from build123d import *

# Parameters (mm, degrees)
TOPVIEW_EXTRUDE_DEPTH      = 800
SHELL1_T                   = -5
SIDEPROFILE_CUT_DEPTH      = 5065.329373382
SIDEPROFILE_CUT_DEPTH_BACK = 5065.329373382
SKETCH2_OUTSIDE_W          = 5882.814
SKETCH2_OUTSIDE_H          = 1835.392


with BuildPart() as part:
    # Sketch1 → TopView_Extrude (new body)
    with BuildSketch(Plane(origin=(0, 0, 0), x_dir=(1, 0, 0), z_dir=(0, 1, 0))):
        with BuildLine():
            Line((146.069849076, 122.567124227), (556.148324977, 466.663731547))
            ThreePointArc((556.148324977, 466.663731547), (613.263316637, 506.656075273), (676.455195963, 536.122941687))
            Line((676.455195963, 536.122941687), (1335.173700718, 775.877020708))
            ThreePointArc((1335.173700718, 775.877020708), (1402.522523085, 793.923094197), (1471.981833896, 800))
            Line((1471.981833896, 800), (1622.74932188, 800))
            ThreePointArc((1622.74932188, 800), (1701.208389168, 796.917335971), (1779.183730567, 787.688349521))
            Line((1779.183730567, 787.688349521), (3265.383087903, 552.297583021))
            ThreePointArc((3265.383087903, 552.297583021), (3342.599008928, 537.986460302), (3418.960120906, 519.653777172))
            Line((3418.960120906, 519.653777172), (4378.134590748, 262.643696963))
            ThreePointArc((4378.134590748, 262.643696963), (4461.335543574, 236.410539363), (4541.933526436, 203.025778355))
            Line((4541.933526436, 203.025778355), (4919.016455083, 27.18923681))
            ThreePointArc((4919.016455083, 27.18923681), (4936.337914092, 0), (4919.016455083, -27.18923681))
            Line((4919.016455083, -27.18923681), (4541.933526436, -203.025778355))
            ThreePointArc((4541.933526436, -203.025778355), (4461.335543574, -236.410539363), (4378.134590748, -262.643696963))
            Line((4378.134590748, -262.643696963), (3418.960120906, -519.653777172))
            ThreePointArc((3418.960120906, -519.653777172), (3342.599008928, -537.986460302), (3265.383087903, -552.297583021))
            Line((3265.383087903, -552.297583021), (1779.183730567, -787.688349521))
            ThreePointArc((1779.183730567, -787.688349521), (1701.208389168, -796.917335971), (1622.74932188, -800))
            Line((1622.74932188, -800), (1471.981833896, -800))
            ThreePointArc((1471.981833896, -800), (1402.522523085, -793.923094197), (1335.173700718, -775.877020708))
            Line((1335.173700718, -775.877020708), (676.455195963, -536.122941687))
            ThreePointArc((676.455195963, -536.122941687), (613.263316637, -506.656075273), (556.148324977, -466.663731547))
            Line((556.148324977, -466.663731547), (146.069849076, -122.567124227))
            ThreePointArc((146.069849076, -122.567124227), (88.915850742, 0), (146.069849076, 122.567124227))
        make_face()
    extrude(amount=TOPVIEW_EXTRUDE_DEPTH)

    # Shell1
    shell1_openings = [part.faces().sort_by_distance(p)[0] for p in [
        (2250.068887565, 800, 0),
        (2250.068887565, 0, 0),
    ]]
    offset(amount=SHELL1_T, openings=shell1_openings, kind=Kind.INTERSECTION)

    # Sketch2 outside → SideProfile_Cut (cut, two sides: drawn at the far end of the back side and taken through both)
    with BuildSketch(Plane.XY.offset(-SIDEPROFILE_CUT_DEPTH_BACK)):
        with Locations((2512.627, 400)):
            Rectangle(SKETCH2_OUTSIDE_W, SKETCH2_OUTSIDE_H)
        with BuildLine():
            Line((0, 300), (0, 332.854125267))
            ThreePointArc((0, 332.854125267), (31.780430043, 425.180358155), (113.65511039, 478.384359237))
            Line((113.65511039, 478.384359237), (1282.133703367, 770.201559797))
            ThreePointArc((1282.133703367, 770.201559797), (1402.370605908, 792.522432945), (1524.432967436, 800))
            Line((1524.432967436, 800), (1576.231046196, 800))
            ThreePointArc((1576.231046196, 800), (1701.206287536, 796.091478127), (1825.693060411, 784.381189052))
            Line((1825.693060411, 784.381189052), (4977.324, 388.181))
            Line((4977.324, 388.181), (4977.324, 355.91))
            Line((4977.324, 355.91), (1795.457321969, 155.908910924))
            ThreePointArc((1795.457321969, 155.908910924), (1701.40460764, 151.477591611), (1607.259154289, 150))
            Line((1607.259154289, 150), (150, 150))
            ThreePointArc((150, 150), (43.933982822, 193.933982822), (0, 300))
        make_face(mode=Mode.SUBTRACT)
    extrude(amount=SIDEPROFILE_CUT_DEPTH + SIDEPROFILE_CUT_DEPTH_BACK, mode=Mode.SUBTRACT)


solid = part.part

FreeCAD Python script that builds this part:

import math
import FreeCAD as App
import Part
import Sketcher
Q = App.Units.Quantity


def faces_at(feature, points):
    """Names of the faces that lie closest to the given points."""
    faces = feature.Shape.Faces
    near = lambda p: min(range(len(faces)), key=lambda i: faces[i].distToShape(Part.Vertex(*p))[0])
    return sorted({f"Face{near(p) + 1}" for p in points})

doc = App.newDocument("Part")
body = doc.addObject("PartDesign::Body", "Body")

# Sketch on XZ plane
sketch1 = body.newObject("Sketcher::SketchObject", "Sketch")
sketch1.AttachmentSupport = (doc.getObject("XZ_Plane"), [""])
sketch1.MapMode = "FlatFace"
sketch1.addGeometry([
    Part.LineSegment(App.Vector(556.148325, -466.663732, 0), App.Vector(146.069849, -122.567124, 0)),  # 0
    Part.ArcOfCircle(Part.Circle(App.Vector(248.915851, 0, 0), App.Vector(0, 0, 1), 160), math.radians(129.999993), math.radians(230.000007)),  # 1
    Part.LineSegment(App.Vector(146.069849, 122.567124, 0), App.Vector(556.148325, 466.663732, 0)),  # 2
    Part.ArcOfCircle(Part.Circle(App.Vector(813.263329, 160.245921, 0), App.Vector(0, 0, 1), 400), math.radians(110.000012), math.radians(129.999993)),  # 3
    Part.LineSegment(App.Vector(676.455196, 536.122942, 0), App.Vector(1335.173701, 775.877021, 0)),  # 4
    Part.ArcOfCircle(Part.Circle(App.Vector(1471.981834, 400, 0), App.Vector(0, 0, 1), 400), math.radians(90), math.radians(110.000012)),  # 5
    Part.LineSegment(App.Vector(1471.981834, 800, 0), App.Vector(1622.749322, 800, 0)),  # 6
    Part.ArcOfCircle(Part.Circle(App.Vector(1622.749322, -200, 0), App.Vector(0, 0, 1), 1000), math.radians(81.000003), math.radians(90)),  # 7
    Part.LineSegment(App.Vector(1779.183731, 787.68835, 0), App.Vector(3265.383088, 552.297583, 0)),  # 8
    Part.ArcOfCircle(Part.Circle(App.Vector(3030.731475, -929.234941, 0), App.Vector(0, 0, 1), 1500), math.radians(74.999997), math.radians(81.000003)),  # 9
    Part.LineSegment(App.Vector(3418.960121, 519.653777, 0), App.Vector(4378.134591, 262.643697, 0)),  # 10
    Part.ArcOfCircle(Part.Circle(App.Vector(4119.315493, -703.282115, 0), App.Vector(0, 0, 1), 1000), math.radians(65.000014), math.radians(74.999997)),  # 11
    Part.LineSegment(App.Vector(4541.933526, 203.025778, 0), App.Vector(4919.016455, 27.189237, 0)),  # 12
    Part.ArcOfCircle(Part.Circle(App.Vector(4906.337914, 0, 0), App.Vector(0, 0, 1), 30), math.radians(-65.000014), math.radians(65.000014)),  # 13
    Part.LineSegment(App.Vector(4919.016455, -27.189237, 0), App.Vector(4541.933526, -203.025778, 0)),  # 14
    Part.ArcOfCircle(Part.Circle(App.Vector(4119.315493, 703.282115, 0), App.Vector(0, 0, 1), 1000), math.radians(-74.999997), math.radians(-65.000014)),  # 15
    Part.LineSegment(App.Vector(4378.134591, -262.643697, 0), App.Vector(3418.960121, -519.653777, 0)),  # 16
    Part.ArcOfCircle(Part.Circle(App.Vector(3030.731475, 929.234941, 0), App.Vector(0, 0, 1), 1500), math.radians(-81.000003), math.radians(-74.999997)),  # 17
    Part.LineSegment(App.Vector(3265.383088, -552.297583, 0), App.Vector(1779.183731, -787.68835, 0)),  # 18
    Part.ArcOfCircle(Part.Circle(App.Vector(1622.749322, 200, 0), App.Vector(0, 0, 1), 1000), math.radians(-90), math.radians(-81.000003)),  # 19
    Part.LineSegment(App.Vector(1622.749322, -800, 0), App.Vector(1471.981834, -800, 0)),  # 20
    Part.ArcOfCircle(Part.Circle(App.Vector(1471.981834, -400, 0), App.Vector(0, 0, 1), 400), math.radians(-110.000012), math.radians(-90)),  # 21
    Part.LineSegment(App.Vector(1335.173701, -775.877021, 0), App.Vector(676.455196, -536.122942, 0)),  # 22
    Part.ArcOfCircle(Part.Circle(App.Vector(813.263329, -160.245921, 0), App.Vector(0, 0, 1), 400), math.radians(-129.999993), math.radians(-110.000012)),  # 23
], False)
sketch1.addConstraint([
    Sketcher.Constraint("Coincident", 0, 2, 1, 2),
    Sketcher.Constraint("Coincident", 1, 1, 2, 1),
    Sketcher.Constraint("Coincident", 2, 2, 3, 2),
    Sketcher.Constraint("Coincident", 3, 1, 4, 1),
    Sketcher.Constraint("Coincident", 4, 2, 5, 2),
    Sketcher.Constraint("Coincident", 5, 1, 6, 1),
    Sketcher.Constraint("Coincident", 6, 2, 7, 2),
    Sketcher.Constraint("Coincident", 7, 1, 8, 1),
    Sketcher.Constraint("Coincident", 8, 2, 9, 2),
    Sketcher.Constraint("Coincident", 9, 1, 10, 1),
    Sketcher.Constraint("Coincident", 10, 2, 11, 2),
    Sketcher.Constraint("Coincident", 11, 1, 12, 1),
    Sketcher.Constraint("Coincident", 12, 2, 13, 2),
    Sketcher.Constraint("Coincident", 13, 1, 14, 1),
    Sketcher.Constraint("Coincident", 14, 2, 15, 2),
    Sketcher.Constraint("Coincident", 15, 1, 16, 1),
    Sketcher.Constraint("Coincident", 16, 2, 17, 2),
    Sketcher.Constraint("Coincident", 17, 1, 18, 1),
    Sketcher.Constraint("Coincident", 18, 2, 19, 2),
    Sketcher.Constraint("Coincident", 19, 1, 20, 1),
    Sketcher.Constraint("Coincident", 20, 2, 21, 2),
    Sketcher.Constraint("Coincident", 21, 1, 22, 1),
    Sketcher.Constraint("Coincident", 22, 2, 23, 2),
    Sketcher.Constraint("Coincident", 23, 1, 0, 1),
    Sketcher.Constraint("Horizontal", 6),
    Sketcher.Constraint("Horizontal", 20),
    Sketcher.Constraint("PointOnObject", 1, 3, -1),
    Sketcher.Constraint("PointOnObject", 13, 3, -1),
    Sketcher.Constraint("Radius", 1, Q("160 mm")),
    Sketcher.Constraint("Radius", 3, Q("400 mm")),
    Sketcher.Constraint("Radius", 5, Q("400 mm")),
    Sketcher.Constraint("Radius", 7, Q("1000 mm")),
    Sketcher.Constraint("Radius", 9, Q("1500 mm")),
    Sketcher.Constraint("Radius", 11, Q("1000 mm")),
    Sketcher.Constraint("Radius", 13, Q("30 mm")),
    Sketcher.Constraint("Radius", 15, Q("1000 mm")),
    Sketcher.Constraint("Radius", 17, Q("1500 mm")),
    Sketcher.Constraint("Radius", 19, Q("1000 mm")),
    Sketcher.Constraint("Radius", 21, Q("400 mm")),
    Sketcher.Constraint("Radius", 23, Q("400 mm")),
    Sketcher.Constraint("DistanceY", -1, 1, 5, 3, Q("400 mm")),
    Sketcher.Constraint("DistanceY", -1, 1, 19, 3, Q("200 mm")),
    Sketcher.Constraint("DistanceX", 0, 2, 1, 3, Q("102.846002 mm")),
    Sketcher.Constraint("DistanceX", 1, 1, 1, 3, Q("102.846002 mm")),
    Sketcher.Constraint("DistanceX", -1, 1, 4, 2, Q("1335.173701 mm")),
    Sketcher.Constraint("DistanceX", -1, 1, 21, 1, Q("1335.173701 mm")),
    Sketcher.Constraint("DistanceY", 3, 3, 4, 2, Q("615.6311 mm")),
    Sketcher.Constraint("DistanceY", 11, 3, 8, 2, Q("1255.579698 mm")),
    Sketcher.Constraint("DistanceX", 23, 3, 18, 2, Q("965.920401 mm")),
    Sketcher.Constraint("Distance", 12, Q("416.064928 mm")),
    Sketcher.Constraint("Distance", 14, Q("416.064928 mm")),
    Sketcher.Constraint("DistanceX", 6, 1, 6, 2, Q("150.767488 mm")),
    Sketcher.Constraint("DistanceX", 20, 2, 20, 1, Q("150.767488 mm")),
    Sketcher.Constraint("DistanceX", -1, 1, 1, 3, Q("248.915851 mm")),
    Sketcher.Constraint("DistanceX", -1, 1, 3, 3, Q("813.263329 mm")),
    Sketcher.Constraint("DistanceY", -1, 1, 3, 3, Q("160.245921 mm")),
    Sketcher.Constraint("DistanceX", -1, 1, 7, 3, Q("1622.749322 mm")),
    Sketcher.Constraint("DistanceY", 9, 3, -1, 1, Q("929.234941 mm")),
    Sketcher.Constraint("DistanceY", -1, 1, 17, 3, Q("929.234941 mm")),
    Sketcher.Constraint("DistanceX", -1, 1, 19, 3, Q("1622.749322 mm")),
    Sketcher.Constraint("DistanceX", -1, 1, 23, 3, Q("813.263329 mm")),
    Sketcher.Constraint("DistanceY", 23, 3, -1, 1, Q("160.245921 mm")),
    Sketcher.Constraint("DistanceY", -1, 1, 2, 2, Q("466.663732 mm")),
    Sketcher.Constraint("DistanceY", -1, 1, 3, 1, Q("536.122942 mm")),
    Sketcher.Constraint("DistanceX", -1, 1, 6, 2, Q("1622.749322 mm")),
    Sketcher.Constraint("DistanceX", -1, 1, 10, 2, Q("4378.134591 mm")),
    Sketcher.Constraint("DistanceY", 14, 2, -1, 1, Q("203.025778 mm")),
    Sketcher.Constraint("DistanceX", -1, 1, 16, 2, Q("3418.960121 mm")),
    Sketcher.Constraint("DistanceY", 21, 1, -1, 1, Q("775.877021 mm")),
    Sketcher.Constraint("DistanceY", 22, 2, -1, 1, Q("536.122942 mm")),
    Sketcher.Constraint("DistanceY", 23, 1, -1, 1, Q("466.663732 mm")),
    Sketcher.Constraint("DistanceX", 5, 3, 9, 3, Q("1558.749641 mm")),
    Sketcher.Constraint("DistanceX", 9, 3, 11, 3, Q("1088.584019 mm")),
    Sketcher.Constraint("DistanceX", 11, 3, 13, 3, Q("787.022421 mm")),
    Sketcher.Constraint("DistanceX", 15, 3, 13, 3, Q("787.022421 mm")),
    Sketcher.Constraint("DistanceY", 11, 3, 15, 3, Q("1406.564231 mm")),
    Sketcher.Constraint("DistanceX", 17, 3, 15, 3, Q("1088.584019 mm")),
    Sketcher.Constraint("DistanceY", 8, 2, 17, 3, Q("376.937358 mm")),
    Sketcher.Constraint("DistanceX", 13, 3, 12, 2, Q("12.678541 mm")),
    Sketcher.Constraint("Distance", 8, Q("1504.725006 mm")),
    Sketcher.Constraint("Distance", 10, Q("993.010496 mm")),
    Sketcher.Constraint("Distance", 16, Q("993.010496 mm")),
    Sketcher.Constraint("Distance", 18, Q("1504.725006 mm")),
    Sketcher.Constraint("DistanceX", -1, 1, 20, 2, Q("1471.981834 mm")),
])
pad1 = body.newObject("PartDesign::Pad", "Pad")
pad1.Profile = sketch1
pad1.Length = 800
pad1.Reversed = True
doc.recompute()

thickness = body.newObject("PartDesign::Thickness", "Thickness")
thickness.Base = (pad1, faces_at(pad1, [(2512.627, 800, 0), (2512.627, 0, 0)]))
thickness.Value = 5
thickness.Reversed = True
thickness.Join = "Intersection"

# Sketch on XY plane
sketch2 = body.newObject("Sketcher::SketchObject", "Sketch001")
sketch2.AttachmentSupport = (doc.getObject("XY_Plane"), [""])
sketch2.MapMode = "FlatFace"
sketch2.addGeometry([
    Part.LineSegment(App.Vector(-428.78, 1317.696, 0), App.Vector(-428.78, -517.696, 0)),  # 0
    Part.LineSegment(App.Vector(-428.78, -517.696, 0), App.Vector(5454.034, -517.696, 0)),  # 1
    Part.LineSegment(App.Vector(5454.034, -517.696, 0), App.Vector(5454.034, 1317.696, 0)),  # 2
    Part.LineSegment(App.Vector(5454.034, 1317.696, 0), App.Vector(-428.78, 1317.696, 0)),  # 3
    Part.ArcOfCircle(Part.Circle(App.Vector(150, 300, 0), App.Vector(0, 0, 1), 150), math.radians(180), math.radians(270)),  # 4
    Part.LineSegment(App.Vector(0, 300, 0), App.Vector(0, 332.854125, 0)),  # 5
    Part.ArcOfCircle(Part.Circle(App.Vector(150, 332.854125, 0), App.Vector(0, 0, 1), 150), math.radians(104.022285), math.radians(180)),  # 6
    Part.LineSegment(App.Vector(113.65511, 478.384359, 0), App.Vector(1282.133703, 770.20156, 0)),  # 7
    Part.ArcOfCircle(Part.Circle(App.Vector(1524.432967, -200, 0), App.Vector(0, 0, 1), 1000), math.radians(90), math.radians(104.022285)),  # 8
    Part.LineSegment(App.Vector(1524.432967, 800, 0), App.Vector(1576.231046, 800, 0)),  # 9
    Part.ArcOfCircle(Part.Circle(App.Vector(1576.231046, -1200, 0), App.Vector(0, 0, 1), 2000), math.radians(82.834778), math.radians(90)),  # 10
    Part.LineSegment(App.Vector(1825.69306, 784.381189, 0), App.Vector(4977.324, 388.181, 0)),  # 11
    Part.LineSegment(App.Vector(4977.324, 388.181, 0), App.Vector(4977.324, 355.91, 0)),  # 12
    Part.LineSegment(App.Vector(4977.324, 355.91, 0), App.Vector(1795.457322, 155.908911, 0)),  # 13
    Part.ArcOfCircle(Part.Circle(App.Vector(1607.259154, 3150.000001, 0), App.Vector(0, 0, 1), 3000.000001), math.radians(-90), math.radians(-86.403318)),  # 14
    Part.LineSegment(App.Vector(1607.259154, 150, 0), App.Vector(150, 150, 0)),  # 15
], False)
sketch2.addConstraint([
    Sketcher.Constraint("Coincident", 0, 2, 1, 1),
    Sketcher.Constraint("Coincident", 1, 2, 2, 1),
    Sketcher.Constraint("Coincident", 2, 2, 3, 1),
    Sketcher.Constraint("Coincident", 3, 2, 0, 1),
    Sketcher.Constraint("Tangent", 4, 1, 5, 1),
    Sketcher.Constraint("Tangent", 5, 2, 6, 2),
    Sketcher.Constraint("Tangent", 6, 1, 7, 1),
    Sketcher.Constraint("Coincident", 7, 2, 8, 2),
    Sketcher.Constraint("Tangent", 8, 1, 9, 1),
    Sketcher.Constraint("Coincident", 9, 2, 10, 2),
    Sketcher.Constraint("Coincident", 10, 1, 11, 1),
    Sketcher.Constraint("Coincident", 11, 2, 12, 1),
    Sketcher.Constraint("Coincident", 12, 2, 13, 1),
    Sketcher.Constraint("Coincident", 13, 2, 14, 2),
    Sketcher.Constraint("Coincident", 14, 1, 15, 1),
    Sketcher.Constraint("Tangent", 15, 2, 4, 2),
    Sketcher.Constraint("Vertical", 0),
    Sketcher.Constraint("Horizontal", 1),
    Sketcher.Constraint("Vertical", 2),
    Sketcher.Constraint("Horizontal", 3),
    Sketcher.Constraint("Vertical", 5),
    Sketcher.Constraint("Horizontal", 9),
    Sketcher.Constraint("Vertical", 12),
    Sketcher.Constraint("Horizontal", 15),
    Sketcher.Constraint("Equal", 4, 6),
    Sketcher.Constraint("PointOnObject", 4, 1, -2),
    Sketcher.Constraint("Vertical", 10, 3, 9, 2),
    Sketcher.Constraint("Radius", 4, Q("150 mm")),
    Sketcher.Constraint("Radius", 8, Q("1000 mm")),
    Sketcher.Constraint("Radius", 10, Q("2000 mm")),
    Sketcher.Constraint("Radius", 14, Q("3000.000001 mm")),
    Sketcher.Constraint("DistanceY", -1, 1, 4, 3, Q("300 mm")),
    Sketcher.Constraint("DistanceY", 8, 3, -1, 1, Q("200 mm")),
    Sketcher.Constraint("DistanceX", 1, 1, 1, 2, Q("5882.814 mm")),
    Sketcher.Constraint("DistanceY", 0, 2, 0, 1, Q("1835.392 mm")),
    Sketcher.Constraint("DistanceY", 12, 2, 12, 1, Q("32.271 mm")),
    Sketcher.Constraint("DistanceX", 0, 2, -1, 1, Q("428.78 mm")),
    Sketcher.Constraint("DistanceY", -1, 1, 12, 2, Q("355.91 mm")),
    Sketcher.Constraint("DistanceX", 11, 2, 1, 2, Q("476.71 mm")),
    Sketcher.Constraint("DistanceY", 0, 2, -1, 1, Q("517.696 mm")),
    Sketcher.Constraint("DistanceX", 9, 1, 9, 2, Q("51.798079 mm")),
    Sketcher.Constraint("DistanceY", 6, 1, 7, 2, Q("291.817201 mm")),
    Sketcher.Constraint("Distance", 13, Q("3188.146169 mm")),
    Sketcher.Constraint("DistanceX", 15, 2, 15, 1, Q("1457.259154 mm")),
    Sketcher.Constraint("DistanceY", 5, 1, 5, 2, Q("32.854125 mm")),
    Sketcher.Constraint("DistanceY", -1, 1, 7, 2, Q("770.20156 mm")),
    Sketcher.Constraint("DistanceX", -1, 1, 13, 2, Q("1795.457322 mm")),
    Sketcher.Constraint("Distance", 11, Q("3176.437024 mm")),
])
pocket1 = body.newObject("PartDesign::Pocket", "Pocket")
pocket1.Profile = sketch2
pocket1.Type = "ThroughAll"
pocket1.Midplane = True

doc.recompute()
